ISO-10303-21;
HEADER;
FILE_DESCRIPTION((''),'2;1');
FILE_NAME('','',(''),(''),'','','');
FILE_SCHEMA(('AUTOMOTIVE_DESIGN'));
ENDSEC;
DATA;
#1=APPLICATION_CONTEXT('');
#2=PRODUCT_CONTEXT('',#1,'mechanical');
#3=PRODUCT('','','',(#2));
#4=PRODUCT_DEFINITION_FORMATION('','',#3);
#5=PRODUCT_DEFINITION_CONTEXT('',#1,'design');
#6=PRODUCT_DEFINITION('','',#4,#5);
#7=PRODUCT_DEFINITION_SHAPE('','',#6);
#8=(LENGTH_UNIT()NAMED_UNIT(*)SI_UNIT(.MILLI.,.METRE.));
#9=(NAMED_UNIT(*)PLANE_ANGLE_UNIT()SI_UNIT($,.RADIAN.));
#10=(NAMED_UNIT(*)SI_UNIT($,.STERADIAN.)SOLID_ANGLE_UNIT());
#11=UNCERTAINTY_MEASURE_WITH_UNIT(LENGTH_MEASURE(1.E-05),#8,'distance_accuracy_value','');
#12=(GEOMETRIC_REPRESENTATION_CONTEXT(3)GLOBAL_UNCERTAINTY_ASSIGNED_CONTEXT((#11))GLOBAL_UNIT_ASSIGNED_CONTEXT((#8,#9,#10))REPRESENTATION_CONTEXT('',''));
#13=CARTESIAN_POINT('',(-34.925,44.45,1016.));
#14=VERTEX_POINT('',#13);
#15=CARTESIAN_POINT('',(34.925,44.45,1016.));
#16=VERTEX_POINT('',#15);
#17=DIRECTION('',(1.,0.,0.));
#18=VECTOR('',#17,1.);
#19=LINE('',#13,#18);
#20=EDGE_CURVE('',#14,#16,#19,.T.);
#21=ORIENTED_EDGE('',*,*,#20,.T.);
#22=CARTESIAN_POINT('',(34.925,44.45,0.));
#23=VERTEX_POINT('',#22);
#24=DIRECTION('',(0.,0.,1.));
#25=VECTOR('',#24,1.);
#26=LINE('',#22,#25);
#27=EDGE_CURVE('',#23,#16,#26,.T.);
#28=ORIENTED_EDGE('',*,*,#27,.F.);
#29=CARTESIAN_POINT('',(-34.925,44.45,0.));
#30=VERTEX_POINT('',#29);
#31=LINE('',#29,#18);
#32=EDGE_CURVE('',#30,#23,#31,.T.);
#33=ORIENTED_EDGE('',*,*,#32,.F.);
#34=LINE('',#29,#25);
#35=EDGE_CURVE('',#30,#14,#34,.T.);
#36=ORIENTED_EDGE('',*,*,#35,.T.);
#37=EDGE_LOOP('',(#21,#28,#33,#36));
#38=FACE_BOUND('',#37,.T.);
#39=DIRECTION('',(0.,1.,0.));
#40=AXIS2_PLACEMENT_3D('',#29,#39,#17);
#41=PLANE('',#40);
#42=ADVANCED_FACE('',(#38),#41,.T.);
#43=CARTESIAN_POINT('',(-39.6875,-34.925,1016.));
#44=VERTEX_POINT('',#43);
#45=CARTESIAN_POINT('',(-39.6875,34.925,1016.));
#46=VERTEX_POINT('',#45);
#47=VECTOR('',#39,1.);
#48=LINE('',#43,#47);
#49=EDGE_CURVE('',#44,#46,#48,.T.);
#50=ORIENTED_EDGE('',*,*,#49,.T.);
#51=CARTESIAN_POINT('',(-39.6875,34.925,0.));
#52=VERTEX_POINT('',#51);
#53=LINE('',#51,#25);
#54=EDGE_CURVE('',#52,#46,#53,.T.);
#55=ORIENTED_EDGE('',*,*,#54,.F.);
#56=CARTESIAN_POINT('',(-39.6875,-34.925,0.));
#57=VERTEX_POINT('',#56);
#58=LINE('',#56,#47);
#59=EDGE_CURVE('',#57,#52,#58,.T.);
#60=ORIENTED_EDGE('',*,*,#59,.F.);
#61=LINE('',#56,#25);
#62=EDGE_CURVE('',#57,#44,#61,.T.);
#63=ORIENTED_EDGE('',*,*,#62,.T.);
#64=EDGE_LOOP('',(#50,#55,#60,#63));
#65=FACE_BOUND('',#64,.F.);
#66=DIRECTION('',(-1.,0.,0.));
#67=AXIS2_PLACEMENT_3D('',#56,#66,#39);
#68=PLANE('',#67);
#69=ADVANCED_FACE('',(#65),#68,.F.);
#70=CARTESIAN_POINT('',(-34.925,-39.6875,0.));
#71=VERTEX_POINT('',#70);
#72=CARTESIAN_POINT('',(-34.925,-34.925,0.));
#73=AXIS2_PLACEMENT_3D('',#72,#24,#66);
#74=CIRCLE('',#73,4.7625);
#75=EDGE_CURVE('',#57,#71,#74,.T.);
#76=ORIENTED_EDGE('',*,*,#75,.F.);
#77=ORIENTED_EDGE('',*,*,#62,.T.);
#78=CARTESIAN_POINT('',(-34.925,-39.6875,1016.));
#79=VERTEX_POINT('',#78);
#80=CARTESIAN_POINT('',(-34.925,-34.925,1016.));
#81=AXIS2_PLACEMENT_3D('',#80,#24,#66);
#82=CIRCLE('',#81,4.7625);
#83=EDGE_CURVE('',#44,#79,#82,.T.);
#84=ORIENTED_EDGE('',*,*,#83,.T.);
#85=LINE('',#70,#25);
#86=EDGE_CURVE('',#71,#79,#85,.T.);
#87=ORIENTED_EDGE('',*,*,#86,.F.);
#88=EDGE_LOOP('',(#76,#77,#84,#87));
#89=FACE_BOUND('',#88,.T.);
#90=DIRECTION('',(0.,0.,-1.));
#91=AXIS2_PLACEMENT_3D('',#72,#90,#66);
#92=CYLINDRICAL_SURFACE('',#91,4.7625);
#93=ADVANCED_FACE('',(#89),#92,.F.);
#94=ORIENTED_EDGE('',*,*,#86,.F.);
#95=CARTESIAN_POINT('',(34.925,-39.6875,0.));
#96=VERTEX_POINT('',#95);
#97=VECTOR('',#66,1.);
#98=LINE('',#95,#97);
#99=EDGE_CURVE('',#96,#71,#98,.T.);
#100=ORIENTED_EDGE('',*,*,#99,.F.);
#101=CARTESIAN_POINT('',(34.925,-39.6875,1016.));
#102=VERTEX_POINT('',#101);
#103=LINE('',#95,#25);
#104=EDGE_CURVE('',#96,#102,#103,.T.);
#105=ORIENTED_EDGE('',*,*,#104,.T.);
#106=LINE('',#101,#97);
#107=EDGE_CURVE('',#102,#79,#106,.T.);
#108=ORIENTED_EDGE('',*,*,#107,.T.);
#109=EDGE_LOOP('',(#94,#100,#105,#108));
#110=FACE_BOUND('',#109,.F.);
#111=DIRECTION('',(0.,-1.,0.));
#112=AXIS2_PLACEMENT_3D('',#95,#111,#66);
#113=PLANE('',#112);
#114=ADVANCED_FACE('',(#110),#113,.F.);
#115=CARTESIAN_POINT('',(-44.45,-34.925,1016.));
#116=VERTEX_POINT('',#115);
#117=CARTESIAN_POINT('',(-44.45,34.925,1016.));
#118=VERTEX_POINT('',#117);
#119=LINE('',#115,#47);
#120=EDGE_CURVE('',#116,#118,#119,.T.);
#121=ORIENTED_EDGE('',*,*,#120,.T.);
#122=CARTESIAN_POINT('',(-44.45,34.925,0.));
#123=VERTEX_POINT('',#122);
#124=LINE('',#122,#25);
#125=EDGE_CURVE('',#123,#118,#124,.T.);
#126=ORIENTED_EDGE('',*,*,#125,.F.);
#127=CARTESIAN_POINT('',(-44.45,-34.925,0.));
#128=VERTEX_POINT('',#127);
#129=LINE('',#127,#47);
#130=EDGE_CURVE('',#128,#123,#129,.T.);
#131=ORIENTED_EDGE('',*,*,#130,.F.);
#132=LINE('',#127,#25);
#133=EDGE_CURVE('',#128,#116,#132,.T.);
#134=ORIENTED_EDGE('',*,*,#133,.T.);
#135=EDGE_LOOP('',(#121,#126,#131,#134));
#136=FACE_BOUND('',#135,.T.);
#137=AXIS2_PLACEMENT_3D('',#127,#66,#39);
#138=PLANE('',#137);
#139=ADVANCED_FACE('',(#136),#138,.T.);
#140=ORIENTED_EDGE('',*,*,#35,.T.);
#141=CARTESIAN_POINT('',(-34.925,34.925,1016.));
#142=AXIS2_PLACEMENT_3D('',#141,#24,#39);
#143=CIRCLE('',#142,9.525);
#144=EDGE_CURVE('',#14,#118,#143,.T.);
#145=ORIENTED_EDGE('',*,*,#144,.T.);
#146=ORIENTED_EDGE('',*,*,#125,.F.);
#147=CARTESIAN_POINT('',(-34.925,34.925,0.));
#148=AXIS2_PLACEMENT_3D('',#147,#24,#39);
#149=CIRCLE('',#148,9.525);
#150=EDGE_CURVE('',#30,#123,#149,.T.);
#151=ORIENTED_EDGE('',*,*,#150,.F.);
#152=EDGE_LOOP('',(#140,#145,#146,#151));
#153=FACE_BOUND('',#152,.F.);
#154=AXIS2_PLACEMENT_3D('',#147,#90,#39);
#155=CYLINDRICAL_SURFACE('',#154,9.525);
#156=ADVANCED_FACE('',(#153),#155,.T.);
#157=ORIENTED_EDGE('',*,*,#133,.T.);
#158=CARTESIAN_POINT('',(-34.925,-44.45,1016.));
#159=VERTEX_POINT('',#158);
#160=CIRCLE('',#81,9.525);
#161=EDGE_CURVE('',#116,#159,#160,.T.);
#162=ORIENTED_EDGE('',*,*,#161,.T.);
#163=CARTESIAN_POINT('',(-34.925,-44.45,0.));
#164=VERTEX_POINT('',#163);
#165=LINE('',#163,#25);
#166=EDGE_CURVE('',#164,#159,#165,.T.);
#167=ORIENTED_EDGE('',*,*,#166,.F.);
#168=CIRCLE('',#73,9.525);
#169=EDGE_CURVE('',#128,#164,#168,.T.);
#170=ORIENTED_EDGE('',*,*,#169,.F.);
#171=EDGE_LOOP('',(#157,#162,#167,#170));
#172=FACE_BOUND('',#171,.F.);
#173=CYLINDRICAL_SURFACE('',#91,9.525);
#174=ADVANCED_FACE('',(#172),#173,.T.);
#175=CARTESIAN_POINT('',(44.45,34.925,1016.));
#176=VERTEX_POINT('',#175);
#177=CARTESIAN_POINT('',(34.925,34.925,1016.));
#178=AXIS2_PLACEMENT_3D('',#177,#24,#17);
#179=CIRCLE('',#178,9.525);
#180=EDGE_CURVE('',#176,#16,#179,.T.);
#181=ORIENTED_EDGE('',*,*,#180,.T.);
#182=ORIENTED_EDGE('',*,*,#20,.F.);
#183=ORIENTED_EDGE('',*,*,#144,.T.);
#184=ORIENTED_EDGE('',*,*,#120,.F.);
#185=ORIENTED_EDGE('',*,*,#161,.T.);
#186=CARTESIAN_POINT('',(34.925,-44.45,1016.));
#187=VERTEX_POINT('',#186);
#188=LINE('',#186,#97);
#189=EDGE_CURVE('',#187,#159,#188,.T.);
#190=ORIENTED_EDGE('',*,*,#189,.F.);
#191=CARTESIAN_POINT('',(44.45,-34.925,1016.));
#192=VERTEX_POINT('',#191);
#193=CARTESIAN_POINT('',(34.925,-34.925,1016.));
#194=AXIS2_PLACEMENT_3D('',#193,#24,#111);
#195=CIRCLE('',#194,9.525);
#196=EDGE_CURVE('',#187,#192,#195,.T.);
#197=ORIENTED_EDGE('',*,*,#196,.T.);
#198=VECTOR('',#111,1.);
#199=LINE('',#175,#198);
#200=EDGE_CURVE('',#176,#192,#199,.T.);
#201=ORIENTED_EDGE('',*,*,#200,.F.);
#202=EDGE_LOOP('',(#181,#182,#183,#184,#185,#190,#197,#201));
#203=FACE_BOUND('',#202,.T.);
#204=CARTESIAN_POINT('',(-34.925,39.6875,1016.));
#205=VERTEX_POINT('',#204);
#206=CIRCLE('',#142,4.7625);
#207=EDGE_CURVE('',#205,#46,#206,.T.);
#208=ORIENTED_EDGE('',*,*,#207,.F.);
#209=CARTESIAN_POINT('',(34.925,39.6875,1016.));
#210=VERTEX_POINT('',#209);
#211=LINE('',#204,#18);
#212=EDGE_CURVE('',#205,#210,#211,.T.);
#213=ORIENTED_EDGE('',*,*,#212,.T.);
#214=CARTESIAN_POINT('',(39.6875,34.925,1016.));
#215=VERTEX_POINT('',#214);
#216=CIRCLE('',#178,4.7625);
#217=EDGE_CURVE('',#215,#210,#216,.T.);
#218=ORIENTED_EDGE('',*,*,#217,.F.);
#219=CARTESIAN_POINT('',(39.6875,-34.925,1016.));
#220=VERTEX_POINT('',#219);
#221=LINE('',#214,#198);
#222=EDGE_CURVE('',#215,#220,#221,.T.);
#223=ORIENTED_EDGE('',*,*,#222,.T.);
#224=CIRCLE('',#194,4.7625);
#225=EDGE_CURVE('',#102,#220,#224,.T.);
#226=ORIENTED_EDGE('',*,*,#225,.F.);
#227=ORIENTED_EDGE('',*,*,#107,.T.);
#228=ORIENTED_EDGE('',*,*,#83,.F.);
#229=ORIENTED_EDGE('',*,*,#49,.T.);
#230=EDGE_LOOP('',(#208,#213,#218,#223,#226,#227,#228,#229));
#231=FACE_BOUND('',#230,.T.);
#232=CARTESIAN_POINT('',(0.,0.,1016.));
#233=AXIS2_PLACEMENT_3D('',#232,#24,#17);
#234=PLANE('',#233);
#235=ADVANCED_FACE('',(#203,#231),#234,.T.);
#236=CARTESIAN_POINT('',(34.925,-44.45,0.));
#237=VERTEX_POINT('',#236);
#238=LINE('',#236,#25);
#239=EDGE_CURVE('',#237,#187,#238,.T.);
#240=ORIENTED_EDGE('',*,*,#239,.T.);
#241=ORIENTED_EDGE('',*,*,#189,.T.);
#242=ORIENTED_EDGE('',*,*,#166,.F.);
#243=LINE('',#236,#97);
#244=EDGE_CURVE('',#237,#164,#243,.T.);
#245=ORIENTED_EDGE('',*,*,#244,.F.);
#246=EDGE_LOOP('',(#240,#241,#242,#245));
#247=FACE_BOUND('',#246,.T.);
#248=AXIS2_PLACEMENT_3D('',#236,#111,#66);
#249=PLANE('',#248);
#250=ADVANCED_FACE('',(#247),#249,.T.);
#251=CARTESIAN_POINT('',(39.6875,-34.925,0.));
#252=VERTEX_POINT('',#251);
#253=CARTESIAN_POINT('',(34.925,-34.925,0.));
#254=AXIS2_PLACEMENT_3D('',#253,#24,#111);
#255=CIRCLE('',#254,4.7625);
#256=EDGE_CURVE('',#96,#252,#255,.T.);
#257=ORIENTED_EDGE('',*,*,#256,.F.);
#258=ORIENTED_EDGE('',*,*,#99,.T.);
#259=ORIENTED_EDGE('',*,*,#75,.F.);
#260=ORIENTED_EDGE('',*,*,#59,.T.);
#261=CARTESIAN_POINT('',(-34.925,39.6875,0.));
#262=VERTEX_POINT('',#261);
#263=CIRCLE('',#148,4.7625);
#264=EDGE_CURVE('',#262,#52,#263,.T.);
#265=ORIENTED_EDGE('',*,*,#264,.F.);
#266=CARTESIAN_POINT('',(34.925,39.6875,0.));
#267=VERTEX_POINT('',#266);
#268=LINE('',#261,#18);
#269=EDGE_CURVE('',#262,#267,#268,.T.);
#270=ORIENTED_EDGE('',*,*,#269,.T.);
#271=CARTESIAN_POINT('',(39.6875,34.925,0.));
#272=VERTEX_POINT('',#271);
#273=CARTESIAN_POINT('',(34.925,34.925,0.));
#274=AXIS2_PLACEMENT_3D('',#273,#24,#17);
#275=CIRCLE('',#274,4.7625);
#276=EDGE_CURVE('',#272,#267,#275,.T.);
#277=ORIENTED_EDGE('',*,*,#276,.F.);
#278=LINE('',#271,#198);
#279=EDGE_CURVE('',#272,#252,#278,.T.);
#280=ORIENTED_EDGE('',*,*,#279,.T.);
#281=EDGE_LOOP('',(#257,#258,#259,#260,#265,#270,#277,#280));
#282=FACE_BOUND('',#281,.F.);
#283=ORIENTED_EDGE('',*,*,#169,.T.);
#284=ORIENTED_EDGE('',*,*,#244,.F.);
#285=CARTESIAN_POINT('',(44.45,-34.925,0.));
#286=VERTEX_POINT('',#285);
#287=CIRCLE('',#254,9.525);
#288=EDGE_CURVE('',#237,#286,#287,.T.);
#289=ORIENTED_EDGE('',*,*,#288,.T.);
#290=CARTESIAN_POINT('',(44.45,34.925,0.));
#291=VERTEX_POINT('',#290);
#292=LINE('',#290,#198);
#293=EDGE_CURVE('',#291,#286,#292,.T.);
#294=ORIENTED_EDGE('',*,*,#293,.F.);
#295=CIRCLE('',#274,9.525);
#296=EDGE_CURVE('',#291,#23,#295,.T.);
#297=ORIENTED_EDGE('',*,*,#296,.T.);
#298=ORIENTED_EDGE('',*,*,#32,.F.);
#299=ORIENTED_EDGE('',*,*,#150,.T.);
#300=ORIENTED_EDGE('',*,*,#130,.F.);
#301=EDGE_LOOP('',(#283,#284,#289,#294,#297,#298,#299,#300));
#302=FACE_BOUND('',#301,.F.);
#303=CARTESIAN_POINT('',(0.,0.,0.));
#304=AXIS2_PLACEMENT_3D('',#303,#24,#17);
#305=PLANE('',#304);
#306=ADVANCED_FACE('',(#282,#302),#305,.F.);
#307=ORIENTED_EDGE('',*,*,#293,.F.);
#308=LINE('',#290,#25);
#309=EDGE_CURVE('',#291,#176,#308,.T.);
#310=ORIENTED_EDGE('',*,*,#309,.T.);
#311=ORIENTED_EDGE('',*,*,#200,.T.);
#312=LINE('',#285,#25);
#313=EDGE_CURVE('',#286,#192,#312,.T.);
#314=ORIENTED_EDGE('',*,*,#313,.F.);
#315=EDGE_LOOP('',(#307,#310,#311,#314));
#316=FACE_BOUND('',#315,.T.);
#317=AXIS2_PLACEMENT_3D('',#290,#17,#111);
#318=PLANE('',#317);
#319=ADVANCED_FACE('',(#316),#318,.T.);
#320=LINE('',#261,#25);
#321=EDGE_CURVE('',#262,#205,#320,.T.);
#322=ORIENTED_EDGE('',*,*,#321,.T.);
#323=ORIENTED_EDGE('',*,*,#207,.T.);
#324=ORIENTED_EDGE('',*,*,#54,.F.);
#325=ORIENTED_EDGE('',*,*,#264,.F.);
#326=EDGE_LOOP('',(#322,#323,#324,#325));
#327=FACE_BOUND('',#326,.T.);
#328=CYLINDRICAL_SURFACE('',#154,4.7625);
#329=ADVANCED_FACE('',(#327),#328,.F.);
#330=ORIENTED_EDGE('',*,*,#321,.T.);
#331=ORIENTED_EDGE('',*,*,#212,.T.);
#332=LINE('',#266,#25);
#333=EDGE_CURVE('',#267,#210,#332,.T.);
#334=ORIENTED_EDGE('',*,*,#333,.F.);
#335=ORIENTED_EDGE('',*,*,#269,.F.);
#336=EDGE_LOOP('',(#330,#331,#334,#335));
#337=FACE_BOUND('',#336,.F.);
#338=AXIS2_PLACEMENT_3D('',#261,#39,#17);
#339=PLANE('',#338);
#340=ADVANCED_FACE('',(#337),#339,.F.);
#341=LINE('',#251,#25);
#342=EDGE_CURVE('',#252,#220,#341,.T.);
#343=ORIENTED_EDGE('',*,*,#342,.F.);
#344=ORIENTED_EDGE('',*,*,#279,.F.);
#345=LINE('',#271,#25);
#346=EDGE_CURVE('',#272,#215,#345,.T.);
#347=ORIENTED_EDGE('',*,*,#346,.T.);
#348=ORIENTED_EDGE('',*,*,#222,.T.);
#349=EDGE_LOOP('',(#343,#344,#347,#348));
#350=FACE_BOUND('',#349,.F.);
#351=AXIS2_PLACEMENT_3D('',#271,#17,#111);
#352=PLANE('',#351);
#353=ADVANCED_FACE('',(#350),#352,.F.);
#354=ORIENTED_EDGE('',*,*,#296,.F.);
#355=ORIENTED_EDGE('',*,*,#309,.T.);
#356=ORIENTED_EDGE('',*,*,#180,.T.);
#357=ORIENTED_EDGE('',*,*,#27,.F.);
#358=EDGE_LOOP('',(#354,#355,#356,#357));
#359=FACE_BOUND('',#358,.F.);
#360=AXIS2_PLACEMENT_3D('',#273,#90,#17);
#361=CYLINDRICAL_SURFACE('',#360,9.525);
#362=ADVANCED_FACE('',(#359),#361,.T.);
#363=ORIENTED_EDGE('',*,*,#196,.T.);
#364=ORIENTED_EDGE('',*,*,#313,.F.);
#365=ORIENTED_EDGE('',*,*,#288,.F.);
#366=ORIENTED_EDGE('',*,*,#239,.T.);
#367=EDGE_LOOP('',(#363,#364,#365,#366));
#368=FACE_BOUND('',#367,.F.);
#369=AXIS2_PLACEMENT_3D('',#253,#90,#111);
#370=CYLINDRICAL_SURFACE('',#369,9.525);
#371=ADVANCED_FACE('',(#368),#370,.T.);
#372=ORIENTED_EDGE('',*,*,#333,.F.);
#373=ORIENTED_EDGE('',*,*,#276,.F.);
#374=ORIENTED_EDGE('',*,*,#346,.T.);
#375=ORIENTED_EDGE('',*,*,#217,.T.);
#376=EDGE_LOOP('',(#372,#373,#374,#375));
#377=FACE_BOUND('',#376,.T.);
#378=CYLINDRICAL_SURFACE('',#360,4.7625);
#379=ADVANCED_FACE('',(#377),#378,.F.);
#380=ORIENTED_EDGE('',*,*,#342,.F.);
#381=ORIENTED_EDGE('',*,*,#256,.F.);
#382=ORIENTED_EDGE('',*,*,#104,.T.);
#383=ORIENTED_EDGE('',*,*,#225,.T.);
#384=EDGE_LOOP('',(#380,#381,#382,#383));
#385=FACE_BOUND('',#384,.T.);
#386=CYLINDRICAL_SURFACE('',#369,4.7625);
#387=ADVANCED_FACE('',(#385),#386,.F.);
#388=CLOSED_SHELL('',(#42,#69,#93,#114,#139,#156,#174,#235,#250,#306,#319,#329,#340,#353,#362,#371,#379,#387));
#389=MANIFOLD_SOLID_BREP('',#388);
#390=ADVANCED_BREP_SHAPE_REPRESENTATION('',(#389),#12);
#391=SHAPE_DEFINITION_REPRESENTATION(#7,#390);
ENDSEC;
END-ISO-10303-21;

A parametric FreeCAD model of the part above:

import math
import FreeCAD as App
import Part
import Sketcher
from FreeCAD import Vector
Q = App.Units.Quantity

doc = App.newDocument("Part")
body = doc.addObject("PartDesign::Body", "Body")

# Sketch on XY plane
sketch1 = body.newObject("Sketcher::SketchObject", "Sketch")
sketch1.AttachmentSupport = (doc.getObject("XY_Plane"), [""])
sketch1.MapMode = "FlatFace"
sketch1.addGeometry(Part.LineSegment(Vector(-44.5, 34.9, 0), Vector(-44.5, -34.9, 0)), False)
sketch1.addGeometry(Part.ArcOfCircle(Part.Circle(Vector(-34.9, -34.9, 0), Vector(0, 0, 1), 9.5), math.radians(180), math.radians(270)), False)
sketch1.addGeometry(Part.LineSegment(Vector(-34.9, -44.5, 0), Vector(34.9, -44.5, 0)), False)
sketch1.addGeometry(Part.ArcOfCircle(Part.Circle(Vector(34.9, -34.9, 0), Vector(0, 0, 1), 9.5), math.radians(-90), math.radians(0)), False)
sketch1.addGeometry(Part.LineSegment(Vector(44.5, -34.9, 0), Vector(44.5, 34.9, 0)), False)
sketch1.addGeometry(Part.ArcOfCircle(Part.Circle(Vector(34.9, 34.9, 0), Vector(0, 0, 1), 9.5), math.radians(0), math.radians(90)), False)
sketch1.addGeometry(Part.LineSegment(Vector(34.9, 44.5, 0), Vector(-34.9, 44.5, 0)), False)
sketch1.addGeometry(Part.ArcOfCircle(Part.Circle(Vector(-34.9, 34.9, 0), Vector(0, 0, 1), 9.5), math.radians(90), math.radians(180)), False)
sketch1.addGeometry(Part.ArcOfCircle(Part.Circle(Vector(-34.9, 34.9, 0), Vector(0, 0, 1), 4.8), math.radians(90), math.radians(180)), False)
sketch1.addGeometry(Part.LineSegment(Vector(-34.9, 39.7, 0), Vector(34.9, 39.7, 0)), False)
sketch1.addGeometry(Part.ArcOfCircle(Part.Circle(Vector(34.9, 34.9, 0), Vector(0, 0, 1), 4.8), math.radians(0), math.radians(90)), False)
sketch1.addGeometry(Part.LineSegment(Vector(39.7, 34.9, 0), Vector(39.7, -34.9, 0)), False)
sketch1.addGeometry(Part.ArcOfCircle(Part.Circle(Vector(34.9, -34.9, 0), Vector(0, 0, 1), 4.8), math.radians(-90), math.radians(0)), False)
sketch1.addGeometry(Part.LineSegment(Vector(34.9, -39.7, 0), Vector(-34.9, -39.7, 0)), False)
sketch1.addGeometry(Part.ArcOfCircle(Part.Circle(Vector(-34.9, -34.9, 0), Vector(0, 0, 1), 4.8), math.radians(180), math.radians(270)), False)
sketch1.addGeometry(Part.LineSegment(Vector(-39.7, -34.9, 0), Vector(-39.7, 34.9, 0)), False)
sketch1.addConstraint(Sketcher.Constraint("Tangent", 0, 2, 1, 1))
sketch1.addConstraint(Sketcher.Constraint("Tangent", 1, 2, 2, 1))
sketch1.addConstraint(Sketcher.Constraint("Tangent", 2, 2, 3, 1))
sketch1.addConstraint(Sketcher.Constraint("Tangent", 3, 2, 4, 1))
sketch1.addConstraint(Sketcher.Constraint("Tangent", 4, 2, 5, 1))
sketch1.addConstraint(Sketcher.Constraint("Tangent", 5, 2, 6, 1))
sketch1.addConstraint(Sketcher.Constraint("Tangent", 6, 2, 7, 1))
sketch1.addConstraint(Sketcher.Constraint("Tangent", 7, 2, 0, 1))
sketch1.addConstraint(Sketcher.Constraint("Tangent", 8, 1, 9, 1))
sketch1.addConstraint(Sketcher.Constraint("Tangent", 9, 2, 10, 2))
sketch1.addConstraint(Sketcher.Constraint("Tangent", 10, 1, 11, 1))
sketch1.addConstraint(Sketcher.Constraint("Tangent", 11, 2, 12, 2))
sketch1.addConstraint(Sketcher.Constraint("Tangent", 12, 1, 13, 1))
sketch1.addConstraint(Sketcher.Constraint("Tangent", 13, 2, 14, 2))
sketch1.addConstraint(Sketcher.Constraint("Tangent", 14, 1, 15, 1))
sketch1.addConstraint(Sketcher.Constraint("Tangent", 15, 2, 8, 2))
sketch1.addConstraint(Sketcher.Constraint("Vertical", 0))
sketch1.addConstraint(Sketcher.Constraint("Horizontal", 2))
sketch1.addConstraint(Sketcher.Constraint("Vertical", 4))
sketch1.addConstraint(Sketcher.Constraint("Horizontal", 6))
sketch1.addConstraint(Sketcher.Constraint("Horizontal", 9))
sketch1.addConstraint(Sketcher.Constraint("Vertical", 11))
sketch1.addConstraint(Sketcher.Constraint("Horizontal", 13))
sketch1.addConstraint(Sketcher.Constraint("Vertical", 15))
sketch1.addConstraint(Sketcher.Constraint("Coincident", 8, 3, 7, 3))
sketch1.addConstraint(Sketcher.Constraint("Coincident", 10, 3, 5, 3))
sketch1.addConstraint(Sketcher.Constraint("Coincident", 12, 3, 3, 3))
sketch1.addConstraint(Sketcher.Constraint("Equal", 1, 3))
sketch1.addConstraint(Sketcher.Constraint("Equal", 3, 5))
sketch1.addConstraint(Sketcher.Constraint("Equal", 5, 7))
sketch1.addConstraint(Sketcher.Constraint("Equal", 12, 14))
sketch1.addConstraint(Sketcher.Constraint("Symmetric", 1, 3, 5, 3, -1, 1))
sketch1.addConstraint(Sketcher.Constraint("Equal", 13, 0))
sketch1.addConstraint(Sketcher.Constraint("Radius", 1, Q("0.375 in")))
sketch1.addConstraint(Sketcher.Constraint("Radius", 8, Q("0.1875 in")))
sketch1.addConstraint(Sketcher.Constraint("DistanceX", 0, 2, -1, 1, Q("1.75 in")))
pad1 = body.newObject("PartDesign::Pad", "Pad")
pad1.Profile = sketch1
pad1.Length = Q("40 in")

doc.recompute()
